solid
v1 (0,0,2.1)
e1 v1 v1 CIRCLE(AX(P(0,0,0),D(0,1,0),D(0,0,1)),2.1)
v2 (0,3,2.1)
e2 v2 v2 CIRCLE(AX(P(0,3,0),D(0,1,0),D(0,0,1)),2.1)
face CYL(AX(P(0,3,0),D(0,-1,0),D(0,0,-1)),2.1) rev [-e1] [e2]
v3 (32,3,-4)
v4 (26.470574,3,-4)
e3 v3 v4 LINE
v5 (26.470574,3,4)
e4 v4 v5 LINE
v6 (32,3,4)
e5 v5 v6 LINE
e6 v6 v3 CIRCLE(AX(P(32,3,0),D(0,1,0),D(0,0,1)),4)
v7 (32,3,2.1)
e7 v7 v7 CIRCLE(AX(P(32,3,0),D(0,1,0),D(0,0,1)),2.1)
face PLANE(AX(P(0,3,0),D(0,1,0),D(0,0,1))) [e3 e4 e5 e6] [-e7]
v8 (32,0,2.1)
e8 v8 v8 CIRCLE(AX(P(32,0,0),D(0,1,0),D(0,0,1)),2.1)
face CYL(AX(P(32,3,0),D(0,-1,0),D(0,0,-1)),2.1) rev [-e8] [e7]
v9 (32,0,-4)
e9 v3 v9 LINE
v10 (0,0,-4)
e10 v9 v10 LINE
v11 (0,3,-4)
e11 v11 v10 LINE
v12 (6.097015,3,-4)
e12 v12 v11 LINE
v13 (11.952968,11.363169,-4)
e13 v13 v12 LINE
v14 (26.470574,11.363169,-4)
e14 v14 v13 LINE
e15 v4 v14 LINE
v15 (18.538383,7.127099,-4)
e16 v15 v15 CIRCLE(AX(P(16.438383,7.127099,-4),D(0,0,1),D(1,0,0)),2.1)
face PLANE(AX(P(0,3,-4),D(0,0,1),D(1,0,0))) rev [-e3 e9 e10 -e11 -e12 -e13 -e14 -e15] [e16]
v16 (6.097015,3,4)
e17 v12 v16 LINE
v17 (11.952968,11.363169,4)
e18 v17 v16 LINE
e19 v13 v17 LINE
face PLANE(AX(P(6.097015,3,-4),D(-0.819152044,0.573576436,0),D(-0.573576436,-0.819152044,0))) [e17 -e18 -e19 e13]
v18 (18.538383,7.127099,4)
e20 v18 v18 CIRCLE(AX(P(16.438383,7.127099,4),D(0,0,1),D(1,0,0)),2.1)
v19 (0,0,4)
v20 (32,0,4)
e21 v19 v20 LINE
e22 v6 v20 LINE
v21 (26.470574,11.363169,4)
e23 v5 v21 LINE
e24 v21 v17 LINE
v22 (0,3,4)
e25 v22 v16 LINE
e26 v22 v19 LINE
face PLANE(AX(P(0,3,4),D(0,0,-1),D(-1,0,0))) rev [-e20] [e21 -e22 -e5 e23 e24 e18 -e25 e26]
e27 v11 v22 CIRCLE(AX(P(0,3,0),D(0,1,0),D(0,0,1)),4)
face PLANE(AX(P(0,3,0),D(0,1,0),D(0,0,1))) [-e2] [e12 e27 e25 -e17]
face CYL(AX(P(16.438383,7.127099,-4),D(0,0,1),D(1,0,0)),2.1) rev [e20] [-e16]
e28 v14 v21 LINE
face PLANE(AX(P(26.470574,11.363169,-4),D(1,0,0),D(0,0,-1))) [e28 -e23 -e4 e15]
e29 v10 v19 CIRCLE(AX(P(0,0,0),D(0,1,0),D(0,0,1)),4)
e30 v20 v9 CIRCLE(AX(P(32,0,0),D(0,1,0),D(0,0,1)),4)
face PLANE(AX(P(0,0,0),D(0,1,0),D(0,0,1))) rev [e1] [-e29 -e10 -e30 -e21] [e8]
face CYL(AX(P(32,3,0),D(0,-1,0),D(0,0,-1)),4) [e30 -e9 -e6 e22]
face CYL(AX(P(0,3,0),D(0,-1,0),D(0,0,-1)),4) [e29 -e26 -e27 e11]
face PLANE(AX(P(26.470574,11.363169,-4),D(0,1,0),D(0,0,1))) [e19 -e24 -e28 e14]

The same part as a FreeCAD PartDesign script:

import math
import FreeCAD as App
import Part
import Sketcher
from FreeCAD import Vector
Q = App.Units.Quantity


def add_polygon(sketch, points):
    """Adds a closed chain of lines whose ends are joined by coincident constraints."""
    first, n = sketch.GeometryCount, len(points)
    for a, b in zip(points, points[1:] + points[:1]):
        sketch.addGeometry(Part.LineSegment(App.Vector(*a, 0), App.Vector(*b, 0)), False)
    for i in range(n):
        sketch.addConstraint(Sketcher.Constraint("Coincident", first + i, 2, first + (i + 1) % n, 1))

doc = App.newDocument("Part")
body = doc.addObject("PartDesign::Body", "Body")

sketch1 = body.newObject("Sketcher::SketchObject", "Sketch")
sketch1.AttachmentSupport = (doc.getObject("XZ_Plane"), [""])
sketch1.MapMode = "FlatFace"
sketch1.addGeometry(Part.LineSegment(Vector(0, 4, 0), Vector(32, 4, 0)), False)
sketch1.addGeometry(Part.ArcOfCircle(Part.Circle(Vector(32, 0, 0), Vector(0, 0, 1), 4), math.radians(-90), math.radians(90)), False)
sketch1.addGeometry(Part.LineSegment(Vector(32, -4, 0), Vector(0, -4, 0)), False)
sketch1.addGeometry(Part.ArcOfCircle(Part.Circle(Vector(0, 0, 0), Vector(0, 0, 1), 4), math.radians(90), math.radians(270)), False)
sketch1.addGeometry(Part.Circle(Vector(0, 0, 0), Vector(0, 0, 1), 2.1), False)
sketch1.addGeometry(Part.Circle(Vector(32, 0, 0), Vector(0, 0, 1), 2.1), False)
sketch1.addConstraint(Sketcher.Constraint("Tangent", 0, 2, 1, 2))
sketch1.addConstraint(Sketcher.Constraint("Tangent", 1, 1, 2, 1))
sketch1.addConstraint(Sketcher.Constraint("Tangent", 2, 2, 3, 2))
sketch1.addConstraint(Sketcher.Constraint("Tangent", 3, 1, 0, 1))
sketch1.addConstraint(Sketcher.Constraint("Horizontal", 0))
sketch1.addConstraint(Sketcher.Constraint("Horizontal", 2))
sketch1.addConstraint(Sketcher.Constraint("Coincident", 3, 3, -1, 1))
sketch1.addConstraint(Sketcher.Constraint("Coincident", 4, 3, -1, 1))
sketch1.addConstraint(Sketcher.Constraint("Coincident", 5, 3, 1, 3))
sketch1.addConstraint(Sketcher.Constraint("Equal", 4, 5))
sketch1.addConstraint(Sketcher.Constraint("Radius", 1, 4.0))
sketch1.addConstraint(Sketcher.Constraint("Diameter", 4, 4.2))
sketch1.addConstraint(Sketcher.Constraint("DistanceX", 0, 1, 0, 2, 32.0))
pad1 = body.newObject("PartDesign::Pad", "Pad")
pad1.Profile = sketch1
pad1.Length = 3
pad1.Reversed = True

sketch2 = body.newObject("Sketcher::SketchObject", "Sketch001")
sketch2.AttachmentSupport = (doc.getObject("XY_Plane"), [""])
sketch2.MapMode = "FlatFace"
sketch2.AttachmentOffset = App.Placement(Vector(0, 0, 4), App.Rotation())
add_polygon(sketch2, [(26.470574, 11.363169), (11.952968, 11.363169), (6.097015, 3), (26.470574, 3)])
sketch2.addGeometry(Part.Circle(Vector(16.438383, 7.127099, 0), Vector(0, 0, 1), 2.1), False)
sketch2.addConstraint(Sketcher.Constraint("Horizontal", 0))
sketch2.addConstraint(Sketcher.Constraint("Horizontal", 2))
sketch2.addConstraint(Sketcher.Constraint("Vertical", 3))
sketch2.addConstraint(Sketcher.Constraint("Diameter", 4, 4.2))
sketch2.addConstraint(Sketcher.Constraint("Angle", 1, Q("-125 deg")))
sketch2.addConstraint(Sketcher.Constraint("DistanceY", -1, 1, 1, 2, 3.0))
sketch2.addConstraint(Sketcher.Constraint("DistanceX", 2, 1, 2, 2, 20.373559))
sketch2.addConstraint(Sketcher.Constraint("DistanceY", 3, 1, 3, 2, 8.363169))
sketch2.addConstraint(Sketcher.Constraint("DistanceY", -1, 1, 4, 3, 7.127099))
sketch2.addConstraint(Sketcher.Constraint("DistanceX", -1, 1, 0, 2, 11.952968))
sketch2.addConstraint(Sketcher.Constraint("DistanceX", 1, 2, 4, 3, 10.341368))
pad2 = body.newObject("PartDesign::Pad", "Pad001")
pad2.Profile = sketch2
pad2.Length = 8
pad2.Reversed = True

doc.recompute()
